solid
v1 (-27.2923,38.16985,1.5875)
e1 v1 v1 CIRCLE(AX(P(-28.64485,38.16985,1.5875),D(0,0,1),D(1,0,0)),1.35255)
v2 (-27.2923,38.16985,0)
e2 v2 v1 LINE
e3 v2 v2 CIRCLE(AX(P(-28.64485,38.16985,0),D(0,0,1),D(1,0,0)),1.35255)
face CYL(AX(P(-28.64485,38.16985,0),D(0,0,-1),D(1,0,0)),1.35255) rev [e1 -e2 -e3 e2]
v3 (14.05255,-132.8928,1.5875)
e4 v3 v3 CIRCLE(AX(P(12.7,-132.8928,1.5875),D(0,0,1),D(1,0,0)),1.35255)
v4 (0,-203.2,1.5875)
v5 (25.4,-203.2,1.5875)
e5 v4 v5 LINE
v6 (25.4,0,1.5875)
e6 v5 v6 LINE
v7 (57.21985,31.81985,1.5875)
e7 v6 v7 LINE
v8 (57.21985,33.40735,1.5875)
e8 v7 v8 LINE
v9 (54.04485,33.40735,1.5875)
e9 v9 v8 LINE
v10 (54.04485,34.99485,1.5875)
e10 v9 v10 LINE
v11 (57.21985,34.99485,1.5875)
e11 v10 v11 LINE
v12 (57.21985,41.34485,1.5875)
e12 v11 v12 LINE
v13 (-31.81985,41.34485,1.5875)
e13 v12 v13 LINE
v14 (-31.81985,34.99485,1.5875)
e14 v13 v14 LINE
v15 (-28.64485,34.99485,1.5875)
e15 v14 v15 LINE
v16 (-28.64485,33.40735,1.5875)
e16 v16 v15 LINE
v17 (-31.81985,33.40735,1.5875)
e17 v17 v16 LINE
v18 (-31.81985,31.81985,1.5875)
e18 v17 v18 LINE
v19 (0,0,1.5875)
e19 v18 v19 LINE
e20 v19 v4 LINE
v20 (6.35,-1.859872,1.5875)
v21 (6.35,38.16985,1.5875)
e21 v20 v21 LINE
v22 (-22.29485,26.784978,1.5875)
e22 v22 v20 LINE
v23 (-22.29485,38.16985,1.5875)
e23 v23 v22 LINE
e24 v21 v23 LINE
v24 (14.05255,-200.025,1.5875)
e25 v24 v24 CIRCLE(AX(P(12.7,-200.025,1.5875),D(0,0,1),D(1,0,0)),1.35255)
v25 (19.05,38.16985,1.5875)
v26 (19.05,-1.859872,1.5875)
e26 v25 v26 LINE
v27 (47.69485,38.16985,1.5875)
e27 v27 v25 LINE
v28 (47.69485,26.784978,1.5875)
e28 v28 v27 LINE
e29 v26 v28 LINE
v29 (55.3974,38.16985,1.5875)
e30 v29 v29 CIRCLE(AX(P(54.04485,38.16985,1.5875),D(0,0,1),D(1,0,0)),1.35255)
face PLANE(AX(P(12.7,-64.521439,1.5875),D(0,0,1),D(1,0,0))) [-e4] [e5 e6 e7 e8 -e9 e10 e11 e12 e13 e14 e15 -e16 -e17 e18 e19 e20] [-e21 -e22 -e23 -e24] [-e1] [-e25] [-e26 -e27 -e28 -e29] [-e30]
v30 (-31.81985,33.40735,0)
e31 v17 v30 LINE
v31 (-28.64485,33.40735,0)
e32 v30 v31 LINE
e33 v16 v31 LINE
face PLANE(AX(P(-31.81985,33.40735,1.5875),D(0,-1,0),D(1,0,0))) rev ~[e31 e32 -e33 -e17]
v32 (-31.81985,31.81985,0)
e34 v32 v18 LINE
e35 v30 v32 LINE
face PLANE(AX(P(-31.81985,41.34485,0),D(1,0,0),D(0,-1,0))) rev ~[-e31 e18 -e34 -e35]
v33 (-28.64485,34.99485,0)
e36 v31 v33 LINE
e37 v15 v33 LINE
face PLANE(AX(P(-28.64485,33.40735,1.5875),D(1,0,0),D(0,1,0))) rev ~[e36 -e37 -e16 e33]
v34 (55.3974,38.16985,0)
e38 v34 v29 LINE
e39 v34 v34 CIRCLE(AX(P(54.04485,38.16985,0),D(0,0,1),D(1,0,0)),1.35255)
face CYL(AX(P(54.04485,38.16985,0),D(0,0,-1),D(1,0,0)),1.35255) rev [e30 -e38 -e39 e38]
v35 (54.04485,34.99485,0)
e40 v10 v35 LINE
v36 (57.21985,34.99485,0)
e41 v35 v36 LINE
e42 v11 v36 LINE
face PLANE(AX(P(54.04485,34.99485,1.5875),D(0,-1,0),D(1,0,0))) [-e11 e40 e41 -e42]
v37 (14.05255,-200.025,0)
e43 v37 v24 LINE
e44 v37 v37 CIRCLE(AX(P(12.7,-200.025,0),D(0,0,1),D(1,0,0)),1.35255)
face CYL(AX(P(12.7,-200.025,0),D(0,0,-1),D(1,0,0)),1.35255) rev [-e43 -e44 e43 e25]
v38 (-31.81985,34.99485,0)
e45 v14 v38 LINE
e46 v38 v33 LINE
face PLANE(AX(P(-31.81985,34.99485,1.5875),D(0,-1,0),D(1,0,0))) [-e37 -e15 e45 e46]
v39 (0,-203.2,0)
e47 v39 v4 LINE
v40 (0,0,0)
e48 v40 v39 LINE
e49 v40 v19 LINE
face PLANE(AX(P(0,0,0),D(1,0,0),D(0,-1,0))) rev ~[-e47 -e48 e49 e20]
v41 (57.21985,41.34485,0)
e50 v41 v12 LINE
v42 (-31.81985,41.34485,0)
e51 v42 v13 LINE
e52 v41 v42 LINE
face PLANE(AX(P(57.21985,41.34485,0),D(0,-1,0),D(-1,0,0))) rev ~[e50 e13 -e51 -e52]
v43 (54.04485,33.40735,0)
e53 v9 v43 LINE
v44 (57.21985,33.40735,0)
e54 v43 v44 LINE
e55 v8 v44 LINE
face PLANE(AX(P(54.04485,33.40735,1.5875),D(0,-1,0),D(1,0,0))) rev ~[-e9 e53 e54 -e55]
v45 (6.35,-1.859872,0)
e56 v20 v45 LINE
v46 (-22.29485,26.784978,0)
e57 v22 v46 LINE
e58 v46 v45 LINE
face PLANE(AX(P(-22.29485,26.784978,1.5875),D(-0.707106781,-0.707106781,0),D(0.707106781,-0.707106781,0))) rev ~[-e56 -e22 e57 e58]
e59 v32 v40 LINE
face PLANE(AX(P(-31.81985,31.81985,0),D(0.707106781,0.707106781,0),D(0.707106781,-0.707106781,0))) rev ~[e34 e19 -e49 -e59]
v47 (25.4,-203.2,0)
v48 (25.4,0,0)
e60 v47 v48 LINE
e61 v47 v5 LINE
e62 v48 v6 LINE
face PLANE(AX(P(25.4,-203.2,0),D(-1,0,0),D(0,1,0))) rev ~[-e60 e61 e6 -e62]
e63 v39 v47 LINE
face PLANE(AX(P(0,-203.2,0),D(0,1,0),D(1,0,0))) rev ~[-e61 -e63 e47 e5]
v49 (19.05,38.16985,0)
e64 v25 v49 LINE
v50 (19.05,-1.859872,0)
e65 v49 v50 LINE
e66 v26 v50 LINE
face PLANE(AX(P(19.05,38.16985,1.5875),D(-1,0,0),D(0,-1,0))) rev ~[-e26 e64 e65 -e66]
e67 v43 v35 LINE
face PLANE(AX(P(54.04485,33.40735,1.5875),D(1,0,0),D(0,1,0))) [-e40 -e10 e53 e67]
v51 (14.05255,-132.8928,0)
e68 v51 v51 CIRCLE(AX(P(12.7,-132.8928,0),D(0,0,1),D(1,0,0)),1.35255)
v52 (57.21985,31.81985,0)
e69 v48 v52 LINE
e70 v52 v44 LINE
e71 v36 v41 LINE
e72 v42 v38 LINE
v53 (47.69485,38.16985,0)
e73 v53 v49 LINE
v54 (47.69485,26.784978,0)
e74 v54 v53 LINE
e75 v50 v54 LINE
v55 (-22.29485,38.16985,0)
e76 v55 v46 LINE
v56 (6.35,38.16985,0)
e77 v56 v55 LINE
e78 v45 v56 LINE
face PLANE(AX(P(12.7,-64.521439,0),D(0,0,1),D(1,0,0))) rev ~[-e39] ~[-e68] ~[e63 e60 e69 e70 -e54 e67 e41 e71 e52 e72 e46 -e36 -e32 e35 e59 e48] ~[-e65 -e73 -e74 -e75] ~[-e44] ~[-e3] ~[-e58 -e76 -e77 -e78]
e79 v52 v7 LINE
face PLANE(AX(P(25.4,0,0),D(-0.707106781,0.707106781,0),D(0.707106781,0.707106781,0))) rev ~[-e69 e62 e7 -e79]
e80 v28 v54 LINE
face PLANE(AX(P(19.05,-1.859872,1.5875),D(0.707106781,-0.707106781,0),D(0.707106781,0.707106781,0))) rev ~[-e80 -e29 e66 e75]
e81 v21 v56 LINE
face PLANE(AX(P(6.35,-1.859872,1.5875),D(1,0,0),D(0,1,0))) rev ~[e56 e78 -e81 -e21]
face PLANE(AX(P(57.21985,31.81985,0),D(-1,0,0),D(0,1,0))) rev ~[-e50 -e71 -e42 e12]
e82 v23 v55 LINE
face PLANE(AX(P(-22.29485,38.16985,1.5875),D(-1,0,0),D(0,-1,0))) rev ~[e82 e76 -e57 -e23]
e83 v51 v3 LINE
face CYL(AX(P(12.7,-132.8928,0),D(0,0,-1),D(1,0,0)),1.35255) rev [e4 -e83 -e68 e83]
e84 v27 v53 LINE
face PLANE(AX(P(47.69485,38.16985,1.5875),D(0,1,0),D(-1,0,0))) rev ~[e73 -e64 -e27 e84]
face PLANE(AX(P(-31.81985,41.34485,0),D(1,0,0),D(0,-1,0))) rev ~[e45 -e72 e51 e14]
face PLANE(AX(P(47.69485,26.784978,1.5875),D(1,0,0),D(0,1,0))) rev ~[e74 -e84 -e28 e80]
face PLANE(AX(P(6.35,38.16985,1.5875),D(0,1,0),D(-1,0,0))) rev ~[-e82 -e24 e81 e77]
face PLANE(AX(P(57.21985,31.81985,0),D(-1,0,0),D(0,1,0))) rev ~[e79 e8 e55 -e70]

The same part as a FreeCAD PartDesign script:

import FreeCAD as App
import Part
import Sketcher
from FreeCAD import Vector
Q = App.Units.Quantity


def add_polygon(sketch, points):
    """Adds a closed chain of lines whose ends are joined by coincident constraints."""
    first, n = sketch.GeometryCount, len(points)
    for a, b in zip(points, points[1:] + points[:1]):
        sketch.addGeometry(Part.LineSegment(App.Vector(*a, 0), App.Vector(*b, 0)), False)
    for i in range(n):
        sketch.addConstraint(Sketcher.Constraint("Coincident", first + i, 2, first + (i + 1) % n, 1))

doc = App.newDocument("Part")
body = doc.addObject("PartDesign::Body", "Body")

# Sketch on XY plane
sketch1 = body.newObject("Sketcher::SketchObject", "Sketch")
sketch1.AttachmentSupport = (doc.getObject("XY_Plane"), [""])
sketch1.MapMode = "FlatFace"
add_polygon(sketch1, [(0, 0), (0, -203.2), (25.4, -203.2), (25.4, 0), (57.21985, 31.81985), (57.21985, 41.34485), (-31.81985, 41.34485), (-31.81985, 31.81985)])  # lines 0-7
sketch1.addGeometry(Part.Circle(Vector(12.7, -200.025, 0), Vector(0, 0, 1), 1.35255), False)  # 8
sketch1.addGeometry(Part.Circle(Vector(12.7, -132.8928, 0), Vector(0, 0, 1), 1.35255), False)  # 9
sketch1.addGeometry(Part.Circle(Vector(-28.64485, 38.16985, 0), Vector(0, 0, 1), 1.35255), False)  # 10
sketch1.addGeometry(Part.Circle(Vector(54.04485, 38.16985, 0), Vector(0, 0, 1), 1.35255), False)  # 11
sketch1.addConstraint([
    Sketcher.Constraint("Vertical", 0),
    Sketcher.Constraint("Horizontal", 1),
    Sketcher.Constraint("Vertical", 2),
    Sketcher.Constraint("Vertical", 4),
    Sketcher.Constraint("Horizontal", 5),
    Sketcher.Constraint("Vertical", 6),
    Sketcher.Constraint("Coincident", 7, 2, -1, 1),
    Sketcher.Constraint("Equal", 8, 9),
    Sketcher.Constraint("Equal", 9, 10),
    Sketcher.Constraint("Equal", 10, 11),
    Sketcher.Constraint("PointOnObject", 2, 2, -1),
    Sketcher.Constraint("Perpendicular", 3, 7),
    Sketcher.Constraint("Horizontal", 10, 3, 11, 3),
    Sketcher.Constraint("Horizontal", 3, 2, 6, 2),
    Sketcher.Constraint("Vertical", 8, 3, 9, 3),
    Sketcher.Constraint("Equal", 3, 7),
    Sketcher.Constraint("DistanceX", 1, 1, 1, 2, Q("1 in")),
    Sketcher.Constraint("DistanceY", 0, 2, 0, 1, Q("8 in")),
    Sketcher.Constraint("Diameter", 8, Q("0.1065 in")),
    Sketcher.Constraint("DistanceX", -1, 1, 8, 3, Q("0.5 in")),
    Sketcher.Constraint("DistanceY", 4, 1, 4, 2, Q("0.375 in")),
    Sketcher.Constraint("DistanceY", 3, 2, 11, 3, Q("0.25 in")),
    Sketcher.Constraint("DistanceX", 5, 2, 5, 1, Q("3.5055 in")),
    Sketcher.Constraint("DistanceY", 8, 3, -1, 1, Q("7.875 in")),
    Sketcher.Constraint("DistanceY", 9, 3, -1, 1, Q("5.232 in")),
    Sketcher.Constraint("DistanceX", 11, 3, 3, 2, Q("0.125 in")),
    Sketcher.Constraint("DistanceX", 5, 2, 10, 3, Q("0.125 in")),
])
pad1 = body.newObject("PartDesign::Pad", "Pad")
pad1.Profile = sketch1
pad1.Length = Q("0.0625 in")

# Sketch on XY plane
sketch2 = body.newObject("Sketcher::SketchObject", "Sketch001")
sketch2.AttachmentSupport = (doc.getObject("XY_Plane"), [""])
sketch2.MapMode = "FlatFace"
sketch2.AttachmentOffset = App.Placement(Vector(0, 0, 0.0625 * 25.4), App.Rotation())
add_polygon(sketch2, [(-31.81985, 34.99485), (-31.81985, 33.40735), (-28.64485, 33.40735), (-28.64485, 34.99485)])  # lines 0-3
add_polygon(sketch2, [(54.04485, 34.99485), (54.04485, 33.40735), (57.21985, 33.40735), (57.21985, 34.99485)])  # lines 4-7
add_polygon(sketch2, [(-22.29485, 38.16985), (-22.29485, 26.784978), (6.35, -1.859872), (6.35, 38.16985)])  # lines 8-11
add_polygon(sketch2, [(47.69485, 38.16985), (19.05, 38.16985), (19.05, -1.859872), (47.69485, 26.784978)])  # lines 12-15
sketch2.addConstraint([
    Sketcher.Constraint("Vertical", 0),
    Sketcher.Constraint("Horizontal", 1),
    Sketcher.Constraint("Vertical", 2),
    Sketcher.Constraint("Horizontal", 3),
    Sketcher.Constraint("Vertical", 4),
    Sketcher.Constraint("Horizontal", 5),
    Sketcher.Constraint("Vertical", 6),
    Sketcher.Constraint("Horizontal", 7),
    Sketcher.Constraint("Vertical", 8),
    Sketcher.Constraint("Vertical", 10),
    Sketcher.Constraint("Horizontal", 11),
    Sketcher.Constraint("Horizontal", 12),
    Sketcher.Constraint("Vertical", 13),
    Sketcher.Constraint("Vertical", 15),
    Sketcher.Constraint("Perpendicular", 9, 14),
    Sketcher.Constraint("Horizontal", 1, 2, 4, 2),
    Sketcher.Constraint("Horizontal", 3, 2, 6, 2),
    Sketcher.Constraint("Horizontal", 11, 2, 12, 2),
    Sketcher.Constraint("Horizontal", 9, 2, 13, 2),
    Sketcher.Constraint("Horizontal", 8, 2, 14, 2),
    Sketcher.Constraint("Equal", 3, 5),
    Sketcher.Constraint("Equal", 11, 12),
    Sketcher.Constraint("DistanceX", 10, 2, 12, 2, Q("0.5 in")),
    Sketcher.Constraint("DistanceX", 1, 1, 1, 2, Q("0.125 in")),
    Sketcher.Constraint("DistanceY", 0, 2, 0, 1, Q("0.0625 in")),
    Sketcher.Constraint("DistanceX", -1, 1, 9, 2, Q("0.25 in")),
    Sketcher.Constraint("DistanceX", 1, 2, 8, 2, Q("0.25 in")),
    Sketcher.Constraint("DistanceX", 14, 2, 4, 2, Q("0.25 in")),
    Sketcher.Constraint("DistanceY", 2, 2, 10, 2, Q("0.125 in")),
    Sketcher.Constraint("DistanceX", 1, 2, 4, 2, Q("3.2555 in")),
    Sketcher.Constraint("DistanceY", 8, 2, 8, 1, Q("11.384872 mm")),
    Sketcher.Constraint("DistanceY", -1, 1, 0, 2, Q("33.40735 mm")),
])
pocket1 = body.newObject("PartDesign::Pocket", "Pocket")
pocket1.Profile = sketch2
pocket1.Type = "ThroughAll"

doc.recompute()
